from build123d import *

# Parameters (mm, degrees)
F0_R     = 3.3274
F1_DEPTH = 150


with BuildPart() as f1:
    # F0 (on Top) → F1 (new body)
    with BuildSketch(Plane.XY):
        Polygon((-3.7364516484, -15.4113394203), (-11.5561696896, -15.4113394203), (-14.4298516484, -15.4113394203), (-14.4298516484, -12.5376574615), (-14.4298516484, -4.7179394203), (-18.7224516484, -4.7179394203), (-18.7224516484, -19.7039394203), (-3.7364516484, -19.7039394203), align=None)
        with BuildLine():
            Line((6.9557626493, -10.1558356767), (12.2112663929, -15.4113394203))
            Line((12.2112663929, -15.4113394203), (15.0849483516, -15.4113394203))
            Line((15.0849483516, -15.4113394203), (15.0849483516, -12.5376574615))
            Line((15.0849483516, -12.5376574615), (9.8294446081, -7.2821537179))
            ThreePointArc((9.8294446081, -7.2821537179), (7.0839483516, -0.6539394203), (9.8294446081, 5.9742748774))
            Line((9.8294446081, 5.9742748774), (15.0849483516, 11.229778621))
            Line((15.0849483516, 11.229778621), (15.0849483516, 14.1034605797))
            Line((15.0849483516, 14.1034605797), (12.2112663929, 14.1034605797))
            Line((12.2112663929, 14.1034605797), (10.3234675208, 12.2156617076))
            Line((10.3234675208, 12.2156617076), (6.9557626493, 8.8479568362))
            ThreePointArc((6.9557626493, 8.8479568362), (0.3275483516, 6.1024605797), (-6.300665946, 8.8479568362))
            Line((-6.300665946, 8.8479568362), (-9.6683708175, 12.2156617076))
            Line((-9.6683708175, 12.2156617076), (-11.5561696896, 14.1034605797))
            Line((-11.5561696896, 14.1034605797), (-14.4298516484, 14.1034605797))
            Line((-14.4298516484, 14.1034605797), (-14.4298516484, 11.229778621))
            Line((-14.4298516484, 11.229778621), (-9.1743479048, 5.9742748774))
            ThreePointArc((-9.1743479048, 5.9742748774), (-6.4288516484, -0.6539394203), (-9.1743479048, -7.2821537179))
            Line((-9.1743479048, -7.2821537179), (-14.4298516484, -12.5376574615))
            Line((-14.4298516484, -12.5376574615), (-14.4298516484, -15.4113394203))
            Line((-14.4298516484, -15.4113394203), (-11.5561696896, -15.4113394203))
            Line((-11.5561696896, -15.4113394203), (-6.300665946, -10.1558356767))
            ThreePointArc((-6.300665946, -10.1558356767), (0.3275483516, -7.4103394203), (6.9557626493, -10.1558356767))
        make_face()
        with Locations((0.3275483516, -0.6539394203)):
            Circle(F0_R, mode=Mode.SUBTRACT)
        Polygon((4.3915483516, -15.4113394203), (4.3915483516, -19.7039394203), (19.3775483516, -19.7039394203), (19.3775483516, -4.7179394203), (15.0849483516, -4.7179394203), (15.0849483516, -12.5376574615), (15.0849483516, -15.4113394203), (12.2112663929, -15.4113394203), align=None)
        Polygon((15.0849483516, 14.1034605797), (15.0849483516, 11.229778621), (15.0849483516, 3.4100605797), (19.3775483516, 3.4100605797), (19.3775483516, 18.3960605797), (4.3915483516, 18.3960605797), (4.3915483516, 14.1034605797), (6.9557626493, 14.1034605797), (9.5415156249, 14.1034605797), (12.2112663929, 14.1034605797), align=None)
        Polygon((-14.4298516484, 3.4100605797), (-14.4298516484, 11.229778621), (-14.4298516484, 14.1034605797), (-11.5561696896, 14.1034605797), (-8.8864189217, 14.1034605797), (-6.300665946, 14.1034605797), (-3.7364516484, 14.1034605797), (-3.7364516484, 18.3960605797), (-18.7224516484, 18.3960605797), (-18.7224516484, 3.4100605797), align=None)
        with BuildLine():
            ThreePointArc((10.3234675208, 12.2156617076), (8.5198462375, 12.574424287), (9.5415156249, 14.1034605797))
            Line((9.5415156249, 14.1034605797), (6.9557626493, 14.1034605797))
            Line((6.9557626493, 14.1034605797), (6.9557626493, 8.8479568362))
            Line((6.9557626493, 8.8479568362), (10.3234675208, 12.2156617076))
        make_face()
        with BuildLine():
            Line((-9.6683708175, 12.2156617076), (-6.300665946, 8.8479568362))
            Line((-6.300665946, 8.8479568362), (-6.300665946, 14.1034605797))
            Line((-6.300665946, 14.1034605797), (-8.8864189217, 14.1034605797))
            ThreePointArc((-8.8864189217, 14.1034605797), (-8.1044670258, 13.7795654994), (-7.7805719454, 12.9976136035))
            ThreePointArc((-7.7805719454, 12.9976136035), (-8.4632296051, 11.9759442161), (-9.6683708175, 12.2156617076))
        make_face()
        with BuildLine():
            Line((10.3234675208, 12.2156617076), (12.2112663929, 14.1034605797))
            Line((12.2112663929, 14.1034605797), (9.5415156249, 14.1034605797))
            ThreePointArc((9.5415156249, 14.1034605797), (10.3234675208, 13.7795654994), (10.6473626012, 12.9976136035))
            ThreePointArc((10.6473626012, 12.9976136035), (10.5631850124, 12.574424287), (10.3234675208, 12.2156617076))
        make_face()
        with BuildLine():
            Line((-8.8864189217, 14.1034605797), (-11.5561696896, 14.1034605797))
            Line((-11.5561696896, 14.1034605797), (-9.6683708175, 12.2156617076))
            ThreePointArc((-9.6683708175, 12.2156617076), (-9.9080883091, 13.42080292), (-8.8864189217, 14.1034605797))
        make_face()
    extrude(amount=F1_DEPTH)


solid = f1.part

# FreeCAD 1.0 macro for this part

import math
import FreeCAD as App
import Part
import Sketcher
from FreeCAD import Vector
Q = App.Units.Quantity

doc = App.newDocument("Part")
body = doc.addObject("PartDesign::Body", "Body")

# Sketch on XY plane
sketch1 = body.newObject("Sketcher::SketchObject", "Sketch")
sketch1.AttachmentSupport = (doc.getObject("XY_Plane"), [""])
sketch1.MapMode = "FlatFace"
sketch1.addGeometry([
    Part.LineSegment(Vector(-3.736452, -15.411339, 0), Vector(-11.55617, -15.411339, 0)),  # 0
    Part.LineSegment(Vector(-11.55617, -15.411339, 0), Vector(-6.300666, -10.155836, 0)),  # 1
    Part.ArcOfCircle(Part.Circle(Vector(0.327548, -16.78405, 0), Vector(0, 0, 1), 9.373711), math.radians(45), math.radians(135)),  # 2
    Part.LineSegment(Vector(6.955763, -10.155836, 0), Vector(12.211266, -15.411339, 0)),  # 3
    Part.LineSegment(Vector(12.211266, -15.411339, 0), Vector(4.391548, -15.411339, 0)),  # 4
    Part.LineSegment(Vector(4.391548, -15.411339, 0), Vector(4.391548, -19.703939, 0)),  # 5
    Part.LineSegment(Vector(4.391548, -19.703939, 0), Vector(19.377548, -19.703939, 0)),  # 6
    Part.LineSegment(Vector(19.377548, -19.703939, 0), Vector(19.377548, -4.717939, 0)),  # 7
    Part.LineSegment(Vector(19.377548, -4.717939, 0), Vector(15.084948, -4.717939, 0)),  # 8
    Part.LineSegment(Vector(15.084948, -4.717939, 0), Vector(15.084948, -12.537657, 0)),  # 9
    Part.LineSegment(Vector(15.084948, -12.537657, 0), Vector(9.829445, -7.282154, 0)),  # 10
    Part.ArcOfCircle(Part.Circle(Vector(16.457659, -0.653939, 0), Vector(0, 0, 1), 9.373711), math.radians(135), math.radians(225)),  # 11
    Part.LineSegment(Vector(9.829445, 5.974275, 0), Vector(15.084948, 11.229779, 0)),  # 12
    Part.LineSegment(Vector(15.084948, 11.229779, 0), Vector(15.084948, 3.410061, 0)),  # 13
    Part.LineSegment(Vector(15.084948, 3.410061, 0), Vector(19.377548, 3.410061, 0)),  # 14
    Part.LineSegment(Vector(19.377548, 3.410061, 0), Vector(19.377548, 18.396061, 0)),  # 15
    Part.LineSegment(Vector(19.377548, 18.396061, 0), Vector(4.391548, 18.396061, 0)),  # 16
    Part.LineSegment(Vector(4.391548, 18.396061, 0), Vector(4.391548, 14.103461, 0)),  # 17
    Part.LineSegment(Vector(4.391548, 14.103461, 0), Vector(6.955763, 14.103461, 0)),  # 18
    Part.LineSegment(Vector(6.955763, 14.103461, 0), Vector(6.955763, 8.847957, 0)),  # 19
    Part.ArcOfCircle(Part.Circle(Vector(0.327548, 15.476171, 0), Vector(0, 0, 1), 9.373711), math.radians(-135), math.radians(-45)),  # 20
    Part.LineSegment(Vector(-6.300666, 8.847957, 0), Vector(-6.300666, 14.103461, 0)),  # 21
    Part.LineSegment(Vector(-6.300666, 14.103461, 0), Vector(-3.736452, 14.103461, 0)),  # 22
    Part.LineSegment(Vector(-3.736452, 14.103461, 0), Vector(-3.736452, 18.396061, 0)),  # 23
    Part.LineSegment(Vector(-3.736452, 18.396061, 0), Vector(-18.722452, 18.396061, 0)),  # 24
    Part.LineSegment(Vector(-18.722452, 18.396061, 0), Vector(-18.722452, 3.410061, 0)),  # 25
    Part.LineSegment(Vector(-18.722452, 3.410061, 0), Vector(-14.429852, 3.410061, 0)),  # 26
    Part.LineSegment(Vector(-14.429852, 3.410061, 0), Vector(-14.429852, 11.229779, 0)),  # 27
    Part.LineSegment(Vector(-14.429852, 11.229779, 0), Vector(-9.174348, 5.974275, 0)),  # 28
    Part.ArcOfCircle(Part.Circle(Vector(-15.802562, -0.653939, 0), Vector(0, 0, 1), 9.373711), math.radians(-45), math.radians(45)),  # 29
    Part.LineSegment(Vector(-9.174348, -7.282154, 0), Vector(-14.429852, -12.537657, 0)),  # 30
    Part.LineSegment(Vector(-14.429852, -12.537657, 0), Vector(-14.429852, -4.717939, 0)),  # 31
    Part.LineSegment(Vector(-14.429852, -4.717939, 0), Vector(-18.722452, -4.717939, 0)),  # 32
    Part.LineSegment(Vector(-18.722452, -4.717939, 0), Vector(-18.722452, -19.703939, 0)),  # 33
    Part.LineSegment(Vector(-18.722452, -19.703939, 0), Vector(-3.736452, -19.703939, 0)),  # 34
    Part.LineSegment(Vector(-3.736452, -19.703939, 0), Vector(-3.736452, -15.411339, 0)),  # 35
    Part.ArcOfCircle(Part.Circle(Vector(-8.886419, 12.997614, 0), Vector(0, 0, 1), 1.105847), math.radians(0), math.radians(90)),  # 36
    Part.ArcOfCircle(Part.Circle(Vector(-8.886419, 12.997614, 0), Vector(0, 0, 1), 1.105847), math.radians(-135), math.radians(0)),  # 37
    Part.ArcOfCircle(Part.Circle(Vector(-8.886419, 12.997614, 0), Vector(0, 0, 1), 1.105847), math.radians(90), math.radians(225)),  # 38
    Part.ArcOfCircle(Part.Circle(Vector(9.541516, 12.997614, 0), Vector(0, 0, 1), 1.105847), math.radians(90), math.radians(315)),  # 39
    Part.ArcOfCircle(Part.Circle(Vector(9.541516, 12.997614, 0), Vector(0, 0, 1), 1.105847), math.radians(0), math.radians(90)),  # 40
    Part.ArcOfCircle(Part.Circle(Vector(9.541516, 12.997614, 0), Vector(0, 0, 1), 1.105847), math.radians(-45), math.radians(0)),  # 41
    Part.Circle(Vector(0.327548, -0.653939, 0), Vector(0, 0, 1), 3.3274),  # 42
], False)
sketch1.addConstraint([
    Sketcher.Constraint("Coincident", 0, 2, 1, 1),
    Sketcher.Constraint("Tangent", 1, 2, 2, 2),
    Sketcher.Constraint("Tangent", 2, 1, 3, 1),
    Sketcher.Constraint("Coincident", 3, 2, 4, 1),
    Sketcher.Constraint("Coincident", 4, 2, 5, 1),
    Sketcher.Constraint("Coincident", 5, 2, 6, 1),
    Sketcher.Constraint("Coincident", 6, 2, 7, 1),
    Sketcher.Constraint("Coincident", 7, 2, 8, 1),
    Sketcher.Constraint("Coincident", 8, 2, 9, 1),
    Sketcher.Constraint("Coincident", 9, 2, 10, 1),
    Sketcher.Constraint("Tangent", 10, 2, 11, 2),
    Sketcher.Constraint("Tangent", 11, 1, 12, 1),
    Sketcher.Constraint("Coincident", 12, 2, 13, 1),
    Sketcher.Constraint("Coincident", 13, 2, 14, 1),
    Sketcher.Constraint("Coincident", 14, 2, 15, 1),
    Sketcher.Constraint("Coincident", 15, 2, 16, 1),
    Sketcher.Constraint("Coincident", 16, 2, 17, 1),
    Sketcher.Constraint("Coincident", 17, 2, 18, 1),
    Sketcher.Constraint("Coincident", 18, 2, 19, 1),
    Sketcher.Constraint("Coincident", 19, 2, 20, 2),
    Sketcher.Constraint("Coincident", 20, 1, 21, 1),
    Sketcher.Constraint("Coincident", 21, 2, 22, 1),
    Sketcher.Constraint("Coincident", 22, 2, 23, 1),
    Sketcher.Constraint("Coincident", 23, 2, 24, 1),
    Sketcher.Constraint("Coincident", 24, 2, 25, 1),
    Sketcher.Constraint("Coincident", 25, 2, 26, 1),
    Sketcher.Constraint("Coincident", 26, 2, 27, 1),
    Sketcher.Constraint("Coincident", 27, 2, 28, 1),
    Sketcher.Constraint("Tangent", 28, 2, 29, 2),
    Sketcher.Constraint("Tangent", 29, 1, 30, 1),
    Sketcher.Constraint("Coincident", 30, 2, 31, 1),
    Sketcher.Constraint("Coincident", 31, 2, 32, 1),
    Sketcher.Constraint("Coincident", 32, 2, 33, 1),
    Sketcher.Constraint("Coincident", 33, 2, 34, 1),
    Sketcher.Constraint("Coincident", 34, 2, 35, 1),
    Sketcher.Constraint("Coincident", 35, 2, 0, 1),
    Sketcher.Constraint("Tangent", 36, 1, 37, 2),
    Sketcher.Constraint("Tangent", 37, 1, 38, 2),
    Sketcher.Constraint("Tangent", 38, 1, 36, 2),
    Sketcher.Constraint("Tangent", 39, 1, 40, 2),
    Sketcher.Constraint("Tangent", 40, 1, 41, 2),
    Sketcher.Constraint("Tangent", 41, 1, 39, 2),
    Sketcher.Constraint("Horizontal", 0),
    Sketcher.Constraint("Horizontal", 4),
    Sketcher.Constraint("Vertical", 5),
    Sketcher.Constraint("Horizontal", 6),
    Sketcher.Constraint("Vertical", 7),
    Sketcher.Constraint("Horizontal", 8),
    Sketcher.Constraint("Vertical", 9),
    Sketcher.Constraint("Vertical", 13),
    Sketcher.Constraint("Horizontal", 14),
    Sketcher.Constraint("Vertical", 15),
    Sketcher.Constraint("Horizontal", 16),
    Sketcher.Constraint("Vertical", 17),
    Sketcher.Constraint("Horizontal", 18),
    Sketcher.Constraint("Vertical", 19),
    Sketcher.Constraint("Vertical", 21),
    Sketcher.Constraint("Horizontal", 22),
    Sketcher.Constraint("Vertical", 23),
    Sketcher.Constraint("Horizontal", 24),
    Sketcher.Constraint("Vertical", 25),
    Sketcher.Constraint("Horizontal", 26),
    Sketcher.Constraint("Vertical", 27),
    Sketcher.Constraint("Vertical", 31),
    Sketcher.Constraint("Horizontal", 32),
    Sketcher.Constraint("Vertical", 33),
    Sketcher.Constraint("Horizontal", 34),
    Sketcher.Constraint("Vertical", 35),
    Sketcher.Constraint("Equal", 2, 11),
    Sketcher.Constraint("Equal", 11, 20),
    Sketcher.Constraint("Equal", 20, 29),
    Sketcher.Constraint("Equal", 38, 39),
    Sketcher.Constraint("Perpendicular", 1, 3),
    Sketcher.Constraint("Parallel", 3, 10),
    Sketcher.Constraint("Perpendicular", 10, 12),
    Sketcher.Constraint("Perpendicular", 12, 28),
    Sketcher.Constraint("Perpendicular", 28, 30),
    Sketcher.Constraint("Horizontal", 11, 3, 29, 3),
    Sketcher.Constraint("Horizontal", 38, 3, 39, 3),
    Sketcher.Constraint("Horizontal", 29, 3, 42, 3),
    Sketcher.Constraint("Horizontal", 1, 2, 2, 1),
    Sketcher.Constraint("Horizontal", 0, 2, 3, 2),
    Sketcher.Constraint("Horizontal", 19, 2, 20, 1),
    Sketcher.Constraint("Horizontal", 18, 2, 21, 2),
    Sketcher.Constraint("Horizontal", 16, 2, 23, 2),
    Sketcher.Constraint("Horizontal", 14, 2, 25, 2),
    Sketcher.Constraint("Horizontal", 12, 2, 27, 2),
    Sketcher.Constraint("Horizontal", 9, 2, 30, 2),
    Sketcher.Constraint("Horizontal", 8, 2, 31, 2),
    Sketcher.Constraint("Horizontal", 6, 2, 33, 2),
    Sketcher.Constraint("Horizontal", 41, 3, 36, 1),
    Sketcher.Constraint("Horizontal", 22, 2, 38, 1),
    Sketcher.Constraint("Horizontal", 36, 1, 40, 1),
    Sketcher.Constraint("Horizontal", 37, 1, 41, 1),
    Sketcher.Constraint("Vertical", 2, 3, 20, 3),
    Sketcher.Constraint("Vertical", 20, 3, 42, 3),
    Sketcher.Constraint("Vertical", 9, 2, 12, 2),
    Sketcher.Constraint("Vertical", 7, 2, 14, 2),
    Sketcher.Constraint("Vertical", 5, 2, 16, 2),
    Sketcher.Constraint("Vertical", 2, 1, 18, 2),
    Sketcher.Constraint("Vertical", 25, 2, 32, 2),
    Sketcher.Constraint("Vertical", 23, 2, 34, 2),
    Sketcher.Constraint("Vertical", 37, 3, 38, 1),
    Sketcher.Constraint("Vertical", 41, 3, 39, 1),
    Sketcher.Constraint("Equal", 0, 4),
    Sketcher.Constraint("Equal", 16, 24),
    Sketcher.Constraint("Equal", 14, 26),
    Sketcher.Constraint("Equal", 32, 5),
    Sketcher.Constraint("Equal", 34, 7),
    Sketcher.Constraint("Equal", 4, 9),
    Sketcher.Constraint("Equal", 9, 13),
    Sketcher.Constraint("Equal", 7, 15),
    Sketcher.Constraint("Equal", 5, 17),
    Sketcher.Constraint("Equal", 3, 10),
    Sketcher.Constraint("Diameter", 42, Q("0.262 in")),
    Sketcher.Constraint("DistanceX", 6, 1, 6, 2, Q("0.59 in")),
    Sketcher.Constraint("DistanceX", 8, 2, 8, 1, Q("0.169 in")),
    Sketcher.Constraint("DistanceX", 2, 3, 4, 2, Q("0.16 in")),
    Sketcher.Constraint("Radius", 2, Q("9.373711 mm")),
    Sketcher.Constraint("Radius", 36, Q("1.105847 mm")),
    Sketcher.Constraint("DistanceY", 12, 2, 39, 3, Q("0.0695998 in")),
    Sketcher.Constraint("DistanceX", 37, 1, 36, 1, Q("1.887799 mm")),
    Sketcher.Constraint("DistanceX", 18, 2, 40, 1, Q("3.6916 mm")),
    Sketcher.Constraint("DistanceY", 19, 2, 19, 1, Q("5.255504 mm")),
    Sketcher.Constraint("DistanceX", -1, 1, 2, 3, Q("0.327548 mm")),
    Sketcher.Constraint("DistanceY", 2, 3, -1, 1, Q("16.78405 mm")),
    Sketcher.Constraint("DistanceX", 36, 3, -1, 1, Q("8.886419 mm")),
])
pad1 = body.newObject("PartDesign::Pad", "Pad")
pad1.Profile = sketch1
pad1.Length = 150

doc.recompute()
